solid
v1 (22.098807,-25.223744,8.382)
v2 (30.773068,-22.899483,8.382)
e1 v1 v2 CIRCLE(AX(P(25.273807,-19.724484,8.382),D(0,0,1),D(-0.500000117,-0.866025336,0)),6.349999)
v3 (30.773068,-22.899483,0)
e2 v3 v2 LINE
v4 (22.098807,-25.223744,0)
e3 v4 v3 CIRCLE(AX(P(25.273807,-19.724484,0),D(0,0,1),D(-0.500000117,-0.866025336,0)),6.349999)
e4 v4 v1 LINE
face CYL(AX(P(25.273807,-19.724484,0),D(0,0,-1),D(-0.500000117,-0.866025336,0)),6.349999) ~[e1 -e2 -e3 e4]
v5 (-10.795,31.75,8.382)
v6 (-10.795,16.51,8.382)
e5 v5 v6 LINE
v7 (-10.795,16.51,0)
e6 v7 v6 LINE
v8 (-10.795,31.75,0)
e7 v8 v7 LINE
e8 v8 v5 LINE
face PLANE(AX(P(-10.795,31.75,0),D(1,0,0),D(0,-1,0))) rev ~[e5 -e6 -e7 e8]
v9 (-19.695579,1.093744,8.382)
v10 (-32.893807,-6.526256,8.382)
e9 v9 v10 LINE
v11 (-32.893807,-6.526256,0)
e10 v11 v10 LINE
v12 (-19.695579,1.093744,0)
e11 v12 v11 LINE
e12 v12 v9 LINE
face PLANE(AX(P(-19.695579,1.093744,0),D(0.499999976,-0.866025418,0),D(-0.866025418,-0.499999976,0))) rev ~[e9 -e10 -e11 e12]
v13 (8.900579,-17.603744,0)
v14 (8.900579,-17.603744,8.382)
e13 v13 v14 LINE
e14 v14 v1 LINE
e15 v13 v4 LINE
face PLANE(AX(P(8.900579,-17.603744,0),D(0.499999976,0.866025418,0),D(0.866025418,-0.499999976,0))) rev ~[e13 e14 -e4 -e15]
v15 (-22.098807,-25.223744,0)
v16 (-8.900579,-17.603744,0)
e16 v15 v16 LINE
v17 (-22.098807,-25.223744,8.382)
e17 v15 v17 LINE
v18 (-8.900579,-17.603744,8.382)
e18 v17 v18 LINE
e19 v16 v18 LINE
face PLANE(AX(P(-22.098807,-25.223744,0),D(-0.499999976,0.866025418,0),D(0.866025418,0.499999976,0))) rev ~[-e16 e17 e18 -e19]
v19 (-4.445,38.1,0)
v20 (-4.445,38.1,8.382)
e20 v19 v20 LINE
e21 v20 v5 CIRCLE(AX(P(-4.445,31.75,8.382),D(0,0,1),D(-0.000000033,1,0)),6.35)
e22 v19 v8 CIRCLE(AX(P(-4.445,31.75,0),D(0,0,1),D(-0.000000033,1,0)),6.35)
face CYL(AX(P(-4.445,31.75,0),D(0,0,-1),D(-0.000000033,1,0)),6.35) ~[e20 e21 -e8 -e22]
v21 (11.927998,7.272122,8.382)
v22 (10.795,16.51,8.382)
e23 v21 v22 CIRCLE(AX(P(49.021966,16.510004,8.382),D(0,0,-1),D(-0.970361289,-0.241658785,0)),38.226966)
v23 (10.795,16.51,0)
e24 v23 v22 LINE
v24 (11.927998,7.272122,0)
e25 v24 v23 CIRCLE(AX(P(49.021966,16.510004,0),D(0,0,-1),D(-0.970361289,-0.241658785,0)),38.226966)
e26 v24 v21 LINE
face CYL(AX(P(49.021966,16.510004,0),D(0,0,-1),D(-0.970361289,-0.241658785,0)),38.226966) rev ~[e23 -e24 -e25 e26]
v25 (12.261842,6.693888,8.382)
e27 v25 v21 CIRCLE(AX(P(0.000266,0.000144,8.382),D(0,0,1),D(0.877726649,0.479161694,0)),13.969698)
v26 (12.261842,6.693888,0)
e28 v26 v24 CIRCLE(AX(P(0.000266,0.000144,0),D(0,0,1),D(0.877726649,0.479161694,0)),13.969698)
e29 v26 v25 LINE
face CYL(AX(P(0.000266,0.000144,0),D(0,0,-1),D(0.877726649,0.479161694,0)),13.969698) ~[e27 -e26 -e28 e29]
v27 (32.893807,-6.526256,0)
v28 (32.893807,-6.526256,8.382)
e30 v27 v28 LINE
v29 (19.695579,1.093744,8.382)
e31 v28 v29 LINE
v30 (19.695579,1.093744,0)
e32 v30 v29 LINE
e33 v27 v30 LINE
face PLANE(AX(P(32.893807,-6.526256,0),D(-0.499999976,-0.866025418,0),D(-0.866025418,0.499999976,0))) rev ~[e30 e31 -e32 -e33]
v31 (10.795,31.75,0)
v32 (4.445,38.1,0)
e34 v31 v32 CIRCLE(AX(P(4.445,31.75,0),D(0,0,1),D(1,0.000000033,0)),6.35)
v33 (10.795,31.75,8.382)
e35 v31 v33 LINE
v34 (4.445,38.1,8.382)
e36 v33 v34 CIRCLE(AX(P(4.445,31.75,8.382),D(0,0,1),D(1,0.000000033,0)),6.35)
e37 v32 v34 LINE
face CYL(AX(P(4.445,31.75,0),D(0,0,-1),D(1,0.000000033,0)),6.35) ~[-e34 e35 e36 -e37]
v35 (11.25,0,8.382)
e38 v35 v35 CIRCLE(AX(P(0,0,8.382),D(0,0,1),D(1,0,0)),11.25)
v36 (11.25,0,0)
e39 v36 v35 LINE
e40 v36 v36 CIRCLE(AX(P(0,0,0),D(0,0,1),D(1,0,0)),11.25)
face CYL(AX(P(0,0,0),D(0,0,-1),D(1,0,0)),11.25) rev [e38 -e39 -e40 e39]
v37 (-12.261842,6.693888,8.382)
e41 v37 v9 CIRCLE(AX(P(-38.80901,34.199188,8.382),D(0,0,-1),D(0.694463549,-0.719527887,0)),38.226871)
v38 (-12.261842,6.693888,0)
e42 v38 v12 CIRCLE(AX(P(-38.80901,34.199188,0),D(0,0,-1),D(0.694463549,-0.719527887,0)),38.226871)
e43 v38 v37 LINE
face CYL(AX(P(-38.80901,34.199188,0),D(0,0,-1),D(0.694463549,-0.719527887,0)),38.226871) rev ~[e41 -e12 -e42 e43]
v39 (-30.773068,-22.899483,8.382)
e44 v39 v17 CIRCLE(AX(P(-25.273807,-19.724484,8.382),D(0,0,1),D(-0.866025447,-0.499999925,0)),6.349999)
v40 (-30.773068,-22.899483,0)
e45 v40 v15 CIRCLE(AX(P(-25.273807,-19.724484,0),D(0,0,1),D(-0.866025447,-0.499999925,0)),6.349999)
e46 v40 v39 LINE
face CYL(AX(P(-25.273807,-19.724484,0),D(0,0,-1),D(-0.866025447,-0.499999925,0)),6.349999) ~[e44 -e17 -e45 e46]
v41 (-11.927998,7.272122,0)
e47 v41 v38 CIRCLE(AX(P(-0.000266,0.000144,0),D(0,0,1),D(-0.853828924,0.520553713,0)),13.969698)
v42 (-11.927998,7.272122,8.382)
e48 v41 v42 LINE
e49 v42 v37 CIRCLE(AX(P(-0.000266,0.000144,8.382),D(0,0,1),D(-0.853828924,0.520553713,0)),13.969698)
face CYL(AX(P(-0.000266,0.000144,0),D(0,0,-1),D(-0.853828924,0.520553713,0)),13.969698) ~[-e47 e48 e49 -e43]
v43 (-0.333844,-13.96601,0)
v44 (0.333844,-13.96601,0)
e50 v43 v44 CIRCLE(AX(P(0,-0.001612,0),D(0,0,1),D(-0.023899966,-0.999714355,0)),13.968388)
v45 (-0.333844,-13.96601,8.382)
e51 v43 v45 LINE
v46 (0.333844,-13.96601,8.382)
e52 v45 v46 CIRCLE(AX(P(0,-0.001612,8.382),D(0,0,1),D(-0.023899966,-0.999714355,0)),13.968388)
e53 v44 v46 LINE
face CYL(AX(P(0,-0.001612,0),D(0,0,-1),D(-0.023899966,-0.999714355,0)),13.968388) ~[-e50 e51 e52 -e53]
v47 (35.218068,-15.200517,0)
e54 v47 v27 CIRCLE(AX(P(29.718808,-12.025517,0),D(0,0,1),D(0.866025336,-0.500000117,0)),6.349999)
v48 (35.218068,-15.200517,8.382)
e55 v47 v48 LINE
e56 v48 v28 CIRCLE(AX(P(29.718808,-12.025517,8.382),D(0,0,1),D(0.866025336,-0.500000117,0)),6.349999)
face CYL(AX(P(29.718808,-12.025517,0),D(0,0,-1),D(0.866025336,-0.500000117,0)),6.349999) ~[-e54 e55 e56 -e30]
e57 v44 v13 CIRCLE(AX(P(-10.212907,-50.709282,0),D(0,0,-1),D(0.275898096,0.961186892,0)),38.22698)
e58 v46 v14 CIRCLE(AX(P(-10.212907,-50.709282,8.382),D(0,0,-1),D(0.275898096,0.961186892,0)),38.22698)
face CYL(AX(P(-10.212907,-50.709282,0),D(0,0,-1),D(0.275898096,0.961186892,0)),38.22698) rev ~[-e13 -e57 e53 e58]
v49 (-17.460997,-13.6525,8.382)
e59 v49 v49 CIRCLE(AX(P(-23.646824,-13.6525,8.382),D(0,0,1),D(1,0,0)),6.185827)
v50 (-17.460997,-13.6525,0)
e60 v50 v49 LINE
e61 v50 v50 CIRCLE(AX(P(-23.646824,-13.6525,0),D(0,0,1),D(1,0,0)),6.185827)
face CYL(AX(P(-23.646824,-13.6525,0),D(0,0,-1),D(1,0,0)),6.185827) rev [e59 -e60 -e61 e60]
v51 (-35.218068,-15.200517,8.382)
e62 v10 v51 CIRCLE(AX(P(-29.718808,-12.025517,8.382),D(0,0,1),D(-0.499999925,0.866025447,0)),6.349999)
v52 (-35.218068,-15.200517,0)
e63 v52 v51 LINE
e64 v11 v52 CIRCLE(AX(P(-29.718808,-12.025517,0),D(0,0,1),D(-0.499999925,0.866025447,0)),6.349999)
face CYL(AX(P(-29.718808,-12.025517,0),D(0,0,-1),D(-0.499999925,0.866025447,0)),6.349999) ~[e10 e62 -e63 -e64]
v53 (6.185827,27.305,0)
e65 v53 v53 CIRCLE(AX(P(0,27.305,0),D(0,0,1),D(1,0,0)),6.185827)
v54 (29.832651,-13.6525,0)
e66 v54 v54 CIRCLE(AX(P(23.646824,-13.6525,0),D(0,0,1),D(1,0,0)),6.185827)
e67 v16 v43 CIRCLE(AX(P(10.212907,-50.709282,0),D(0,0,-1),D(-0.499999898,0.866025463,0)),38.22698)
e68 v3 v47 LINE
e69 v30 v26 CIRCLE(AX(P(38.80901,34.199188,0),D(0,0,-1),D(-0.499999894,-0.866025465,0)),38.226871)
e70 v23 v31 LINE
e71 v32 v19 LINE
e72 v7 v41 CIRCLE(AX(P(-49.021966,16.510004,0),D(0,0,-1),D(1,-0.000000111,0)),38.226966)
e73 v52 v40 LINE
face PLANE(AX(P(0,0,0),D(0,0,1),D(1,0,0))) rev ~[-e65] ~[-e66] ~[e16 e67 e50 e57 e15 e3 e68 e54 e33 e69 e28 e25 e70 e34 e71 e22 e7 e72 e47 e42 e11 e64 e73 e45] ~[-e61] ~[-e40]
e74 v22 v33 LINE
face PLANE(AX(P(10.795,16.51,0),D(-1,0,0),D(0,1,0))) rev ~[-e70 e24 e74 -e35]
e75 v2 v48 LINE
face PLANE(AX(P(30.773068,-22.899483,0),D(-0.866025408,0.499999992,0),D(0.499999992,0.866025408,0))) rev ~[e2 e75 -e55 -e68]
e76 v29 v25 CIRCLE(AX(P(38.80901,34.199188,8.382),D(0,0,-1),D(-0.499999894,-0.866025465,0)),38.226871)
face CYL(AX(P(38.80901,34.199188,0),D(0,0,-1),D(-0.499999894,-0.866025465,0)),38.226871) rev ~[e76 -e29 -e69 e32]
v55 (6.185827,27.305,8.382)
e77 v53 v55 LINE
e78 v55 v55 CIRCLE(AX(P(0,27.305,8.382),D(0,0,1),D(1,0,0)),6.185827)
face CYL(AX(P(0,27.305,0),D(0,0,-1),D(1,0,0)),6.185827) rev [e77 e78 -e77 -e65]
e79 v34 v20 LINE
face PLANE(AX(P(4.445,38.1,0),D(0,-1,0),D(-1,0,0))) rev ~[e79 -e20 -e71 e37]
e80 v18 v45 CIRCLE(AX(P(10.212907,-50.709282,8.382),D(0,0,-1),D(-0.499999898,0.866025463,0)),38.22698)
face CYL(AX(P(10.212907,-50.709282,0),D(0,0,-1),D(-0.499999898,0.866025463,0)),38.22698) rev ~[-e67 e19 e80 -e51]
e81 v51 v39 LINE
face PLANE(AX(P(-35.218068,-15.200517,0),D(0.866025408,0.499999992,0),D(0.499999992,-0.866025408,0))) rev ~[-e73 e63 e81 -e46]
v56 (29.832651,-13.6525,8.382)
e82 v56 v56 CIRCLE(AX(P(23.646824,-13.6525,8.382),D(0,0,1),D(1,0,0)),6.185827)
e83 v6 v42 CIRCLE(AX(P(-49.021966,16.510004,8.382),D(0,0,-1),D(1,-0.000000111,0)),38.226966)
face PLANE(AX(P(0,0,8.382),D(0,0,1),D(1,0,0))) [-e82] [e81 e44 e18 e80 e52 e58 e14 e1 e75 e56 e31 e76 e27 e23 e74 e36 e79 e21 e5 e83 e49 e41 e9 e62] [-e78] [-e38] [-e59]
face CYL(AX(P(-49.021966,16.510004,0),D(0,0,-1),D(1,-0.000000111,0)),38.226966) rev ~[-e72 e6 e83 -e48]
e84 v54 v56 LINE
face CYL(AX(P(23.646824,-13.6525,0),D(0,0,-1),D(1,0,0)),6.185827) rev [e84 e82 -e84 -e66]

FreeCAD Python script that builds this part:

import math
import FreeCAD as App
import Part
import Sketcher
from FreeCAD import Vector
Q = App.Units.Quantity

doc = App.newDocument("Part")
body = doc.addObject("PartDesign::Body", "Body")

# Sketch on XY plane
sketch1 = doc.addObject("Sketcher::SketchObject", "Sketch")
body.addObject(sketch1)
sketch1.AttachmentSupport = (doc.XY_Plane, [""])
sketch1.MapMode = "FlatFace"
sketch1.addGeometry([
    Part.ArcOfCircle(Part.Circle(Vector(-49.021966, 16.510004, 0), Vector(0, 0, 1), 38.226966), math.radians(-13.984464), math.radians(-0.000006)),  # 0
    Part.ArcOfCircle(Part.Circle(Vector(-0.000266, 0.000144, 0), Vector(0, 0, 1), 13.969698), math.radians(148.630599), math.radians(151.369335)),  # 1
    Part.ArcOfCircle(Part.Circle(Vector(-38.80901, 34.199188, 0), Vector(0, 0, 1), 38.226871), math.radians(-60.000007), math.radians(-46.015516)),  # 2
    Part.LineSegment(Vector(-19.695579, 1.093744, 0), Vector(-32.893807, -6.526256, 0)),  # 3
    Part.ArcOfCircle(Part.Circle(Vector(-29.718808, -12.025517, 0), Vector(0, 0, 1), 6.349999), math.radians(119.999995), math.radians(210.000008)),  # 4
    Part.LineSegment(Vector(-35.218068, -15.200517, 0), Vector(-30.773068, -22.899483, 0)),  # 5
    Part.ArcOfCircle(Part.Circle(Vector(-25.273807, -19.724484, 0), Vector(0, 0, 1), 6.349999), math.radians(-150.000005), math.radians(-59.999992)),  # 6
    Part.LineSegment(Vector(-22.098807, -25.223744, 0), Vector(-8.900579, -17.603744, 0)),  # 7
    Part.ArcOfCircle(Part.Circle(Vector(10.212907, -50.709282, 0), Vector(0, 0, 1), 38.22698), math.radians(106.015542), math.radians(119.999993)),  # 8
    Part.ArcOfCircle(Part.Circle(Vector(0, -0.001612, 0), Vector(0, 0, 1), 13.968388), math.radians(-91.369498), math.radians(-88.630502)),  # 9
    Part.ArcOfCircle(Part.Circle(Vector(-10.212907, -50.709282, 0), Vector(0, 0, 1), 38.22698), math.radians(60.000007), math.radians(73.984458)),  # 10
    Part.LineSegment(Vector(8.900579, -17.603744, 0), Vector(22.098807, -25.223744, 0)),  # 11
    Part.ArcOfCircle(Part.Circle(Vector(25.273807, -19.724484, 0), Vector(0, 0, 1), 6.349999), math.radians(-120.000008), math.radians(-29.999995)),  # 12
    Part.LineSegment(Vector(30.773068, -22.899483, 0), Vector(35.218068, -15.200517, 0)),  # 13
    Part.ArcOfCircle(Part.Circle(Vector(29.718808, -12.025517, 0), Vector(0, 0, 1), 6.349999), math.radians(-30.000008), math.radians(60.000005)),  # 14
    Part.LineSegment(Vector(32.893807, -6.526256, 0), Vector(19.695579, 1.093744, 0)),  # 15
    Part.ArcOfCircle(Part.Circle(Vector(38.80901, 34.199188, 0), Vector(0, 0, 1), 38.226871), math.radians(-133.984484), math.radians(-119.999993)),  # 16
    Part.ArcOfCircle(Part.Circle(Vector(0.000266, 0.000144, 0), Vector(0, 0, 1), 13.969698), math.radians(28.630665), math.radians(31.369401)),  # 17
    Part.ArcOfCircle(Part.Circle(Vector(49.021966, 16.510004, 0), Vector(0, 0, 1), 38.226966), math.radians(-179.999994), math.radians(-166.015536)),  # 18
    Part.LineSegment(Vector(10.795, 16.51, 0), Vector(10.795, 31.75, 0)),  # 19
    Part.ArcOfCircle(Part.Circle(Vector(4.445, 31.75, 0), Vector(0, 0, 1), 6.35), math.radians(0.000002), math.radians(89.999998)),  # 20
    Part.LineSegment(Vector(4.445, 38.1, 0), Vector(-4.445, 38.1, 0)),  # 21
    Part.ArcOfCircle(Part.Circle(Vector(-4.445, 31.75, 0), Vector(0, 0, 1), 6.35), math.radians(90.000002), math.radians(179.999998)),  # 22
    Part.LineSegment(Vector(-10.795, 31.75, 0), Vector(-10.795, 16.51, 0)),  # 23
    Part.Circle(Vector(-23.646824, -13.6525, 0), Vector(0, 0, 1), 6.185827),  # 24
    Part.Circle(Vector(23.646824, -13.6525, 0), Vector(0, 0, 1), 6.185827),  # 25
    Part.Circle(Vector(0, 0, 0), Vector(0, 0, 1), 11.25),  # 26
    Part.Circle(Vector(0, 27.305, 0), Vector(0, 0, 1), 6.185827),  # 27
], False)
sketch1.addConstraint([
    Sketcher.Constraint("Coincident", 0, 1, 1, 1),
    Sketcher.Constraint("Coincident", 1, 2, 2, 2),
    Sketcher.Constraint("Tangent", 2, 1, 3, 1),
    Sketcher.Constraint("Tangent", 3, 2, 4, 1),
    Sketcher.Constraint("Tangent", 4, 2, 5, 1),
    Sketcher.Constraint("Tangent", 5, 2, 6, 1),
    Sketcher.Constraint("Tangent", 6, 2, 7, 1),
    Sketcher.Constraint("Tangent", 7, 2, 8, 2),
    Sketcher.Constraint("Coincident", 8, 1, 9, 1),
    Sketcher.Constraint("Coincident", 9, 2, 10, 2),
    Sketcher.Constraint("Tangent", 10, 1, 11, 1),
    Sketcher.Constraint("Tangent", 11, 2, 12, 1),
    Sketcher.Constraint("Tangent", 12, 2, 13, 1),
    Sketcher.Constraint("Tangent", 13, 2, 14, 1),
    Sketcher.Constraint("Tangent", 14, 2, 15, 1),
    Sketcher.Constraint("Tangent", 15, 2, 16, 2),
    Sketcher.Constraint("Coincident", 16, 1, 17, 1),
    Sketcher.Constraint("Coincident", 17, 2, 18, 2),
    Sketcher.Constraint("Tangent", 18, 1, 19, 1),
    Sketcher.Constraint("Tangent", 19, 2, 20, 1),
    Sketcher.Constraint("Tangent", 20, 2, 21, 1),
    Sketcher.Constraint("Tangent", 21, 2, 22, 1),
    Sketcher.Constraint("Tangent", 22, 2, 23, 1),
    Sketcher.Constraint("Tangent", 23, 2, 0, 2),
    Sketcher.Constraint("Vertical", 19),
    Sketcher.Constraint("Horizontal", 21),
    Sketcher.Constraint("Vertical", 23),
    Sketcher.Constraint("Coincident", 26, 3, -1, 1),
    Sketcher.Constraint("Equal", 4, 6),
    Sketcher.Constraint("Equal", 8, 10),
    Sketcher.Constraint("Equal", 6, 12),
    Sketcher.Constraint("Equal", 12, 14),
    Sketcher.Constraint("Equal", 2, 16),
    Sketcher.Constraint("Equal", 1, 17),
    Sketcher.Constraint("Equal", 0, 18),
    Sketcher.Constraint("Equal", 14, 20),
    Sketcher.Constraint("Equal", 20, 22),
    Sketcher.Constraint("Equal", 24, 25),
    Sketcher.Constraint("Equal", 25, 27),
    Sketcher.Constraint("Symmetric", 8, 3, 10, 3, -2),
    Sketcher.Constraint("Symmetric", 6, 3, 12, 3, -2),
    Sketcher.Constraint("Symmetric", 4, 3, 14, 3, -2),
    Sketcher.Constraint("Symmetric", 2, 3, 16, 3, -2),
    Sketcher.Constraint("Symmetric", 1, 3, 17, 3, -2),
    Sketcher.Constraint("Symmetric", 0, 3, 18, 3, -2),
    Sketcher.Constraint("Symmetric", 24, 3, 25, 3, -2),
    Sketcher.Constraint("PointOnObject", 9, 3, -2),
    Sketcher.Constraint("PointOnObject", 27, 3, -2),
    Sketcher.Constraint("Perpendicular", 3, 5),
    Sketcher.Constraint("Perpendicular", 5, 7),
    Sketcher.Constraint("Equal", 3, 7),
    Sketcher.Constraint("Radius", 4, Q("0.25 in")),
    Sketcher.Constraint("DistanceY", 19, 1, 19, 2, Q("0.6 in")),
    Sketcher.Constraint("Angle", 3, Q("-150.000002 deg")),
    Sketcher.Constraint("Distance", 3, Q("0.6 in")),
    Sketcher.Constraint("DistanceX", 21, 2, 21, 1, Q("0.35 in")),
    Sketcher.Constraint("DistanceY", -1, 1, 20, 2, Q("1.5 in")),
    Sketcher.Constraint("DistanceX", 3, 2, 6, 3, Q("0.3 in")),
    Sketcher.Constraint("Diameter", 26, 22.5),
    Sketcher.Constraint("Radius", 1, 13.969698),
    Sketcher.Constraint("DistanceY", -1, 1, 27, 3, Q("1.075 in")),
    Sketcher.Constraint("Radius", 2, 38.226871),
    Sketcher.Constraint("Radius", 8, 38.22698),
    Sketcher.Constraint("Radius", 9, 13.968388),
    Sketcher.Constraint("Diameter", 24, 12.371654),
    Sketcher.Constraint("DistanceY", 24, 3, -1, 1, Q("0.5375 in")),
    Sketcher.Constraint("Radius", 0, 38.226966),
    Sketcher.Constraint("DistanceX", 0, 1, -1, 1, 11.927998),
    Sketcher.Constraint("DistanceX", 0, 3, 1, 3, 49.021701),
    Sketcher.Constraint("DistanceX", 6, 3, 10, 3, 15.0609),
    Sketcher.Constraint("DistanceY", 9, 3, 16, 3, 34.2008),
    Sketcher.Constraint("DistanceY", 9, 3, 1, 2, 6.6955),
    Sketcher.Constraint("DistanceX", 24, 3, 1, 3, 23.646558),
])
pad1 = doc.addObject("PartDesign::Pad", "Pad")
body.addObject(pad1)
pad1.Profile = sketch1
pad1.Length = Q("0.33 in")

doc.recompute()
